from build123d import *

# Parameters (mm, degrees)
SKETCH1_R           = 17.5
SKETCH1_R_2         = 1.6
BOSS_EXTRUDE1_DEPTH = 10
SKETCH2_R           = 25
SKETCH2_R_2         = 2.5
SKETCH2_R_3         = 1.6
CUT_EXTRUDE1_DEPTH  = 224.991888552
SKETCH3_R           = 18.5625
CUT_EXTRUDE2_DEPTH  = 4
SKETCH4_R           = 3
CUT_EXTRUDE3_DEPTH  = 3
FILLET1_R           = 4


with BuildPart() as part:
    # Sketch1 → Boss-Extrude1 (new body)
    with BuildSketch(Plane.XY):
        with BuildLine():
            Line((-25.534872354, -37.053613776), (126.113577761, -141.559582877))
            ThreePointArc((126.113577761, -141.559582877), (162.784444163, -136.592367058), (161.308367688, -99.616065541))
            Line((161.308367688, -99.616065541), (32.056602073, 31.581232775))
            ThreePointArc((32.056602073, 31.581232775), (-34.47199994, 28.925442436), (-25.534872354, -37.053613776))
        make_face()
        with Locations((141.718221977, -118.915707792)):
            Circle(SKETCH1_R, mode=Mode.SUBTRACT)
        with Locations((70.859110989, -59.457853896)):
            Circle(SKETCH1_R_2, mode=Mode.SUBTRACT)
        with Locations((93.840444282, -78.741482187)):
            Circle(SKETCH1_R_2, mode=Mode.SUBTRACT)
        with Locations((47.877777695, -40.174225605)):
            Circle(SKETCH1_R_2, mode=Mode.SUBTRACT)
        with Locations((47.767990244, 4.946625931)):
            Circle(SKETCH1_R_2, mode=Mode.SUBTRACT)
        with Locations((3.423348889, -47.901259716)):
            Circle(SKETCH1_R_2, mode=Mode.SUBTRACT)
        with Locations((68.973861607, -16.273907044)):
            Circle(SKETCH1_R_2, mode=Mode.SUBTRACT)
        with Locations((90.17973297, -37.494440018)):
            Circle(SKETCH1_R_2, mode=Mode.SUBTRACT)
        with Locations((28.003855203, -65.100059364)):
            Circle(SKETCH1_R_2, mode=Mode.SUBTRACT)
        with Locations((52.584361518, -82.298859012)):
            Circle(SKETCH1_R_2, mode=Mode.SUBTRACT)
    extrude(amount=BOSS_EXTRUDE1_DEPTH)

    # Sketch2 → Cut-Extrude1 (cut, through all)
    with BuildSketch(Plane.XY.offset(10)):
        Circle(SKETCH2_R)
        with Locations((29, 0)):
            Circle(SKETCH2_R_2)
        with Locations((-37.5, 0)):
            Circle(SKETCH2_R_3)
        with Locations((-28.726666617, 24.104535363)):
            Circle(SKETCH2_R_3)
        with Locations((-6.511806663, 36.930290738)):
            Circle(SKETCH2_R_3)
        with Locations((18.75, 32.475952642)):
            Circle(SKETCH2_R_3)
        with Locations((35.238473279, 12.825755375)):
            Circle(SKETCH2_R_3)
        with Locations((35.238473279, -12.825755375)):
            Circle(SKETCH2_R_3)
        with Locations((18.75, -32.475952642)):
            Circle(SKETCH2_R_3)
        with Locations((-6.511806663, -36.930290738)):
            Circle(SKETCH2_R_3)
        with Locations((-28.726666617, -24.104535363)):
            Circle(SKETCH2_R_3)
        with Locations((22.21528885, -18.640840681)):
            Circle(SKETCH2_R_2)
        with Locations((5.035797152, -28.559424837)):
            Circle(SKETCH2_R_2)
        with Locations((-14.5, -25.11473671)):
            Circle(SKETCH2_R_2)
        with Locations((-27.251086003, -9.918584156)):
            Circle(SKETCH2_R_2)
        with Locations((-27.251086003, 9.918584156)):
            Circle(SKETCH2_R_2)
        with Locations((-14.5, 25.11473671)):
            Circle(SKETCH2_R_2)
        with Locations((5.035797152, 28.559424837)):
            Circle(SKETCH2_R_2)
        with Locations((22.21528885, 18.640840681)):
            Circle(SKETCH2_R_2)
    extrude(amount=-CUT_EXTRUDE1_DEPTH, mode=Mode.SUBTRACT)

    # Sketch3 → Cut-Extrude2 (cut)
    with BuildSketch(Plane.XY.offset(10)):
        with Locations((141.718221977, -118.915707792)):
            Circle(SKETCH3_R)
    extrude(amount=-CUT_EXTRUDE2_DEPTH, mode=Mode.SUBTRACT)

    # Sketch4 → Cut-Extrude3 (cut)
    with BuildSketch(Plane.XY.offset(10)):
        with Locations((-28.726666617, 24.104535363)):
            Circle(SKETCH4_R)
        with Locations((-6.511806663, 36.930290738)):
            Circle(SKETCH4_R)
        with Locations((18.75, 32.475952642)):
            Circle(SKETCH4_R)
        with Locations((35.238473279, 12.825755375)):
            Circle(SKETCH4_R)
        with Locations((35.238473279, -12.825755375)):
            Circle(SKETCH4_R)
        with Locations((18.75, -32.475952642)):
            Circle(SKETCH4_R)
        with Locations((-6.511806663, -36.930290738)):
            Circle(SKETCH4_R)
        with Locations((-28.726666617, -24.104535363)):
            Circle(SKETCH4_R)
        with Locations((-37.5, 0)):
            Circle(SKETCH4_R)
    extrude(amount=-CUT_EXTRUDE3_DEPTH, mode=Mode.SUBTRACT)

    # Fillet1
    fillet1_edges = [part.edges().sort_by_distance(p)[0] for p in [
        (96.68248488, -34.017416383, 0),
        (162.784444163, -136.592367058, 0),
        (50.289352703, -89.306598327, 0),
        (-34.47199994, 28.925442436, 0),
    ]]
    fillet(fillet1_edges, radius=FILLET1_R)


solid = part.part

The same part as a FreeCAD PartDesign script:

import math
import FreeCAD as App
import Part
import Sketcher


def edges_at(feature, points):
    """Names of the edges that pass closest to the given points."""
    edges = feature.Shape.Edges
    near = lambda p: min(range(len(edges)), key=lambda i: edges[i].distToShape(Part.Vertex(*p))[0])
    return sorted({f"Edge{near(p) + 1}" for p in points})

doc = App.newDocument("Part")
body = doc.addObject("PartDesign::Body", "Body")

sketch1 = doc.addObject("Sketcher::SketchObject", "Sketch")
body.addObject(sketch1)
sketch1.AttachmentSupport = (doc.XY_Plane, [""])
sketch1.MapMode = "FlatFace"
sketch1.addGeometry([
    Part.LineSegment(App.Vector(-25.5, -37.1, 0), App.Vector(126.1, -141.6, 0)),
    Part.ArcOfCircle(Part.Circle(App.Vector(141.7, -118.9, 0), App.Vector(0, 0, 1), 27.5), math.radians(-125), math.radians(45)),
    Part.LineSegment(App.Vector(161.3, -99.6, 0), App.Vector(32.1, 31.6, 0)),
    Part.ArcOfCircle(Part.Circle(App.Vector(0, 0, 0), App.Vector(0, 0, 1), 45), math.radians(45), math.radians(235)),
    Part.Circle(App.Vector(28, -65.1, 0), App.Vector(0, 0, 1), 1.6),
    Part.Circle(App.Vector(52.6, -82.3, 0), App.Vector(0, 0, 1), 1.6),
    Part.Circle(App.Vector(141.7, -118.9, 0), App.Vector(0, 0, 1), 17.5),
    Part.Circle(App.Vector(93.8, -78.7, 0), App.Vector(0, 0, 1), 1.6),
    Part.Circle(App.Vector(3.4, -47.9, 0), App.Vector(0, 0, 1), 1.6),
    Part.Circle(App.Vector(70.9, -59.5, 0), App.Vector(0, 0, 1), 1.6),
    Part.Circle(App.Vector(47.9, -40.2, 0), App.Vector(0, 0, 1), 1.6),
    Part.Circle(App.Vector(69, -16.3, 0), App.Vector(0, 0, 1), 1.6),
    Part.Circle(App.Vector(47.8, 4.9, 0), App.Vector(0, 0, 1), 1.6),
    Part.Circle(App.Vector(90.2, -37.5, 0), App.Vector(0, 0, 1), 1.6),
], False)
sketch1.addConstraint([
    Sketcher.Constraint("Tangent", 0, 2, 1, 1),
    Sketcher.Constraint("Tangent", 1, 2, 2, 1),
    Sketcher.Constraint("Tangent", 2, 2, 3, 1),
    Sketcher.Constraint("Tangent", 3, 2, 0, 1),
    Sketcher.Constraint("Coincident", 3, 3, -1, 1),
    Sketcher.Constraint("Coincident", 6, 3, 1, 3),
    Sketcher.Constraint("Equal", 4, 5),
    Sketcher.Constraint("Equal", 5, 7),
    Sketcher.Constraint("Equal", 7, 8),
    Sketcher.Constraint("Equal", 8, 9),
    Sketcher.Constraint("Equal", 9, 10),
    Sketcher.Constraint("Equal", 10, 11),
    Sketcher.Constraint("Equal", 11, 12),
    Sketcher.Constraint("Equal", 12, 13),
    Sketcher.Constraint("Diameter", 6, 35.0),
    Sketcher.Constraint("Radius", 3, 45.0),
    Sketcher.Constraint("Diameter", 4, 3.2),
    Sketcher.Constraint("Radius", 1, 27.5),
    Sketcher.Constraint("DistanceY", 5, 3, 4, 3, 17.1988),
    Sketcher.Constraint("DistanceY", 4, 3, 8, 3, 17.1988),
    Sketcher.Constraint("DistanceX", 5, 3, 11, 3, 16.3895),
    Sketcher.Constraint("DistanceY", 0, 2, 7, 3, 62.818101),
    Sketcher.Constraint("DistanceX", -1, 1, 1, 3, 141.718222),
    Sketcher.Constraint("DistanceY", 4, 3, -1, 1, 65.100059),
    Sketcher.Constraint("DistanceX", -1, 1, 5, 3, 52.584362),
    Sketcher.Constraint("DistanceX", -1, 1, 8, 3, 3.423349),
    Sketcher.Constraint("DistanceX", -1, 1, 9, 3, 70.859111),
    Sketcher.Constraint("DistanceX", -1, 1, 12, 3, 47.76799),
    Sketcher.Constraint("DistanceY", 13, 3, -1, 1, 37.49444),
    Sketcher.Constraint("DistanceY", 1, 3, 4, 3, 53.815648),
    Sketcher.Constraint("DistanceX", 4, 3, 7, 3, 65.836589),
    Sketcher.Constraint("DistanceY", 7, 3, 9, 3, 19.283628),
    Sketcher.Constraint("DistanceY", 9, 3, 10, 3, 19.283628),
    Sketcher.Constraint("DistanceX", 8, 3, 10, 3, 44.454429),
    Sketcher.Constraint("DistanceY", 10, 3, 11, 3, 23.900319),
    Sketcher.Constraint("DistanceY", 10, 3, 12, 3, 45.120852),
    Sketcher.Constraint("DistanceX", 9, 3, 13, 3, 19.320622),
    Sketcher.Constraint("DistanceX", 13, 3, 7, 3, 3.660711),
])
pad1 = doc.addObject("PartDesign::Pad", "Pad")
body.addObject(pad1)
pad1.Profile = sketch1
pad1.Length = 10

sketch2 = doc.addObject("Sketcher::SketchObject", "Sketch001")
body.addObject(sketch2)
sketch2.AttachmentSupport = (doc.XY_Plane, [""])
sketch2.MapMode = "FlatFace"
sketch2.AttachmentOffset = App.Placement(App.Vector(0, 0, 10), App.Rotation())
sketch2.addGeometry([
    Part.Circle(App.Vector(0, 0, 0), App.Vector(0, 0, 1), 25),
    Part.Circle(App.Vector(29, 0, 0), App.Vector(0, 0, 1), 2.5),
    Part.Circle(App.Vector(-37.5, 0, 0), App.Vector(0, 0, 1), 1.6),
    Part.Circle(App.Vector(-28.7, 24.1, 0), App.Vector(0, 0, 1), 1.6),
    Part.Circle(App.Vector(-6.5, 36.9, 0), App.Vector(0, 0, 1), 1.6),
    Part.Circle(App.Vector(18.8, 32.5, 0), App.Vector(0, 0, 1), 1.6),
    Part.Circle(App.Vector(35.2, 12.8, 0), App.Vector(0, 0, 1), 1.6),
    Part.Circle(App.Vector(35.2, -12.8, 0), App.Vector(0, 0, 1), 1.6),
    Part.Circle(App.Vector(18.8, -32.5, 0), App.Vector(0, 0, 1), 1.6),
    Part.Circle(App.Vector(-6.5, -36.9, 0), App.Vector(0, 0, 1), 1.6),
    Part.Circle(App.Vector(-28.7, -24.1, 0), App.Vector(0, 0, 1), 1.6),
    Part.Circle(App.Vector(22.2, -18.6, 0), App.Vector(0, 0, 1), 2.5),
    Part.Circle(App.Vector(5, -28.6, 0), App.Vector(0, 0, 1), 2.5),
    Part.Circle(App.Vector(-14.5, -25.1, 0), App.Vector(0, 0, 1), 2.5),
    Part.Circle(App.Vector(-27.3, -9.9, 0), App.Vector(0, 0, 1), 2.5),
    Part.Circle(App.Vector(-27.3, 9.9, 0), App.Vector(0, 0, 1), 2.5),
    Part.Circle(App.Vector(-14.5, 25.1, 0), App.Vector(0, 0, 1), 2.5),
    Part.Circle(App.Vector(5, 28.6, 0), App.Vector(0, 0, 1), 2.5),
    Part.Circle(App.Vector(22.2, 18.6, 0), App.Vector(0, 0, 1), 2.5),
], False)
sketch2.addConstraint([
    Sketcher.Constraint("Coincident", 0, 3, -1, 1),
    Sketcher.Constraint("Equal", 2, 3),
    Sketcher.Constraint("Equal", 3, 4),
    Sketcher.Constraint("Equal", 4, 5),
    Sketcher.Constraint("Equal", 5, 6),
    Sketcher.Constraint("Equal", 6, 7),
    Sketcher.Constraint("Equal", 7, 8),
    Sketcher.Constraint("Equal", 8, 9),
    Sketcher.Constraint("Equal", 9, 10),
    Sketcher.Constraint("Equal", 1, 11),
    Sketcher.Constraint("Equal", 11, 12),
    Sketcher.Constraint("Equal", 12, 13),
    Sketcher.Constraint("Equal", 13, 14),
    Sketcher.Constraint("Equal", 14, 15),
    Sketcher.Constraint("Equal", 15, 16),
    Sketcher.Constraint("Equal", 16, 17),
    Sketcher.Constraint("Equal", 17, 18),
    Sketcher.Constraint("Symmetric", 6, 3, 7, 3, -1),
    Sketcher.Constraint("Symmetric", 5, 3, 8, 3, -1),
    Sketcher.Constraint("Symmetric", 4, 3, 9, 3, -1),
    Sketcher.Constraint("Symmetric", 3, 3, 10, 3, -1),
    Sketcher.Constraint("Symmetric", 14, 3, 15, 3, -1),
    Sketcher.Constraint("Symmetric", 13, 3, 16, 3, -1),
    Sketcher.Constraint("Symmetric", 12, 3, 17, 3, -1),
    Sketcher.Constraint("Symmetric", 11, 3, 18, 3, -1),
    Sketcher.Constraint("PointOnObject", 1, 3, -1),
    Sketcher.Constraint("PointOnObject", 2, 3, -1),
    Sketcher.Constraint("Diameter", 0, 50.0),
    Sketcher.Constraint("Diameter", 1, 5.0),
    Sketcher.Constraint("Diameter", 2, 3.2),
    Sketcher.Constraint("DistanceX", -1, 1, 1, 3, 29.0),
    Sketcher.Constraint("DistanceX", 2, 3, -1, 1, 37.5),
    Sketcher.Constraint("DistanceX", 13, 3, -1, 1, 14.5),
    Sketcher.Constraint("DistanceX", -1, 1, 5, 3, 18.75),
    Sketcher.Constraint("DistanceY", 13, 3, 10, 3, 1.010201),
    Sketcher.Constraint("DistanceY", -1, 1, 4, 3, 36.930291),
    Sketcher.Constraint("DistanceX", -1, 1, 11, 3, 22.215289),
    Sketcher.Constraint("DistanceY", 11, 3, -1, 1, 18.640841),
    Sketcher.Constraint("DistanceX", 3, 3, 4, 3, 22.21486),
    Sketcher.Constraint("DistanceY", 5, 3, 4, 3, 4.454338),
    Sketcher.Constraint("DistanceX", 4, 3, 6, 3, 41.75028),
    Sketcher.Constraint("DistanceY", 6, 3, 3, 3, 11.27878),
    Sketcher.Constraint("DistanceY", 7, 3, 6, 3, 25.651511),
    Sketcher.Constraint("DistanceX", 12, 3, 11, 3, 17.179492),
    Sketcher.Constraint("DistanceY", 12, 3, 7, 3, 15.733669),
    Sketcher.Constraint("DistanceX", 10, 3, 14, 3, 1.475581),
    Sketcher.Constraint("DistanceY", 10, 3, 14, 3, 14.185951),
    Sketcher.Constraint("DistanceX", 3, 3, -1, 1, 28.726667),
])
pocket1 = doc.addObject("PartDesign::Pocket", "Pocket")
body.addObject(pocket1)
pocket1.Profile = sketch2
pocket1.Type = "ThroughAll"

sketch3 = doc.addObject("Sketcher::SketchObject", "Sketch002")
body.addObject(sketch3)
sketch3.AttachmentSupport = (doc.XY_Plane, [""])
sketch3.MapMode = "FlatFace"
sketch3.AttachmentOffset = App.Placement(App.Vector(0, 0, 10), App.Rotation())
sketch3.addGeometry(Part.Circle(App.Vector(142, -119, 0), App.Vector(0, 0, 1), 19), False)
sketch3.addConstraint([
    Sketcher.Constraint("Diameter", 0, 37.125),
    Sketcher.Constraint("DistanceX", -1, 1, 0, 3, 141.718222),
    Sketcher.Constraint("DistanceY", 0, 3, -1, 1, 118.915708),
])
pocket2 = doc.addObject("PartDesign::Pocket", "Pocket001")
body.addObject(pocket2)
pocket2.Profile = sketch3
pocket2.Length = 4

sketch4 = doc.addObject("Sketcher::SketchObject", "Sketch003")
body.addObject(sketch4)
sketch4.AttachmentSupport = (doc.XY_Plane, [""])
sketch4.MapMode = "FlatFace"
sketch4.AttachmentOffset = App.Placement(App.Vector(0, 0, 10), App.Rotation())
sketch4.addGeometry([
    Part.Circle(App.Vector(-28.7, 24.1, 0), App.Vector(0, 0, 1), 3),
    Part.Circle(App.Vector(-6.5, 36.9, 0), App.Vector(0, 0, 1), 3),
    Part.Circle(App.Vector(18.8, 32.5, 0), App.Vector(0, 0, 1), 3),
    Part.Circle(App.Vector(35.2, 12.8, 0), App.Vector(0, 0, 1), 3),
    Part.Circle(App.Vector(35.2, -12.8, 0), App.Vector(0, 0, 1), 3),
    Part.Circle(App.Vector(18.8, -32.5, 0), App.Vector(0, 0, 1), 3),
    Part.Circle(App.Vector(-6.5, -36.9, 0), App.Vector(0, 0, 1), 3),
    Part.Circle(App.Vector(-28.7, -24.1, 0), App.Vector(0, 0, 1), 3),
    Part.Circle(App.Vector(-37.5, 0, 0), App.Vector(0, 0, 1), 3),
], False)
sketch4.addConstraint([
    Sketcher.Constraint("Equal", 0, 1),
    Sketcher.Constraint("Equal", 1, 2),
    Sketcher.Constraint("Equal", 2, 3),
    Sketcher.Constraint("Equal", 3, 4),
    Sketcher.Constraint("Equal", 4, 5),
    Sketcher.Constraint("Equal", 5, 6),
    Sketcher.Constraint("Equal", 6, 7),
    Sketcher.Constraint("Equal", 7, 8),
    Sketcher.Constraint("Symmetric", 3, 3, 4, 3, -1),
    Sketcher.Constraint("Symmetric", 2, 3, 5, 3, -1),
    Sketcher.Constraint("Symmetric", 1, 3, 6, 3, -1),
    Sketcher.Constraint("Symmetric", 0, 3, 7, 3, -1),
    Sketcher.Constraint("PointOnObject", 8, 3, -1),
    Sketcher.Constraint("Diameter", 0, 6.0),
    Sketcher.Constraint("DistanceX", 8, 3, -1, 1, 37.5),
    Sketcher.Constraint("DistanceX", -1, 1, 2, 3, 18.75),
    Sketcher.Constraint("DistanceY", -1, 1, 1, 3, 36.930291),
    Sketcher.Constraint("DistanceX", 0, 3, 1, 3, 22.21486),
    Sketcher.Constraint("DistanceY", 2, 3, 1, 3, 4.454338),
    Sketcher.Constraint("DistanceX", 1, 3, 3, 3, 41.75028),
    Sketcher.Constraint("DistanceY", 3, 3, 0, 3, 11.27878),
    Sketcher.Constraint("DistanceY", 4, 3, 3, 3, 25.651511),
    Sketcher.Constraint("DistanceX", 0, 3, -1, 1, 28.726667),
])
pocket3 = doc.addObject("PartDesign::Pocket", "Pocket002")
body.addObject(pocket3)
pocket3.Profile = sketch4
pocket3.Length = 3
doc.recompute()

fillet = doc.addObject("PartDesign::Fillet", "Fillet")
body.addObject(fillet)
fillet.Base = (pocket3, edges_at(pocket3, [
    (96.682, -34.017, 0),
    (162.784, -136.592, 0),
    (50.289, -89.307, 0),
    (-34.472, 28.925, 0),
]))
fillet.Radius = 4

doc.recompute()
